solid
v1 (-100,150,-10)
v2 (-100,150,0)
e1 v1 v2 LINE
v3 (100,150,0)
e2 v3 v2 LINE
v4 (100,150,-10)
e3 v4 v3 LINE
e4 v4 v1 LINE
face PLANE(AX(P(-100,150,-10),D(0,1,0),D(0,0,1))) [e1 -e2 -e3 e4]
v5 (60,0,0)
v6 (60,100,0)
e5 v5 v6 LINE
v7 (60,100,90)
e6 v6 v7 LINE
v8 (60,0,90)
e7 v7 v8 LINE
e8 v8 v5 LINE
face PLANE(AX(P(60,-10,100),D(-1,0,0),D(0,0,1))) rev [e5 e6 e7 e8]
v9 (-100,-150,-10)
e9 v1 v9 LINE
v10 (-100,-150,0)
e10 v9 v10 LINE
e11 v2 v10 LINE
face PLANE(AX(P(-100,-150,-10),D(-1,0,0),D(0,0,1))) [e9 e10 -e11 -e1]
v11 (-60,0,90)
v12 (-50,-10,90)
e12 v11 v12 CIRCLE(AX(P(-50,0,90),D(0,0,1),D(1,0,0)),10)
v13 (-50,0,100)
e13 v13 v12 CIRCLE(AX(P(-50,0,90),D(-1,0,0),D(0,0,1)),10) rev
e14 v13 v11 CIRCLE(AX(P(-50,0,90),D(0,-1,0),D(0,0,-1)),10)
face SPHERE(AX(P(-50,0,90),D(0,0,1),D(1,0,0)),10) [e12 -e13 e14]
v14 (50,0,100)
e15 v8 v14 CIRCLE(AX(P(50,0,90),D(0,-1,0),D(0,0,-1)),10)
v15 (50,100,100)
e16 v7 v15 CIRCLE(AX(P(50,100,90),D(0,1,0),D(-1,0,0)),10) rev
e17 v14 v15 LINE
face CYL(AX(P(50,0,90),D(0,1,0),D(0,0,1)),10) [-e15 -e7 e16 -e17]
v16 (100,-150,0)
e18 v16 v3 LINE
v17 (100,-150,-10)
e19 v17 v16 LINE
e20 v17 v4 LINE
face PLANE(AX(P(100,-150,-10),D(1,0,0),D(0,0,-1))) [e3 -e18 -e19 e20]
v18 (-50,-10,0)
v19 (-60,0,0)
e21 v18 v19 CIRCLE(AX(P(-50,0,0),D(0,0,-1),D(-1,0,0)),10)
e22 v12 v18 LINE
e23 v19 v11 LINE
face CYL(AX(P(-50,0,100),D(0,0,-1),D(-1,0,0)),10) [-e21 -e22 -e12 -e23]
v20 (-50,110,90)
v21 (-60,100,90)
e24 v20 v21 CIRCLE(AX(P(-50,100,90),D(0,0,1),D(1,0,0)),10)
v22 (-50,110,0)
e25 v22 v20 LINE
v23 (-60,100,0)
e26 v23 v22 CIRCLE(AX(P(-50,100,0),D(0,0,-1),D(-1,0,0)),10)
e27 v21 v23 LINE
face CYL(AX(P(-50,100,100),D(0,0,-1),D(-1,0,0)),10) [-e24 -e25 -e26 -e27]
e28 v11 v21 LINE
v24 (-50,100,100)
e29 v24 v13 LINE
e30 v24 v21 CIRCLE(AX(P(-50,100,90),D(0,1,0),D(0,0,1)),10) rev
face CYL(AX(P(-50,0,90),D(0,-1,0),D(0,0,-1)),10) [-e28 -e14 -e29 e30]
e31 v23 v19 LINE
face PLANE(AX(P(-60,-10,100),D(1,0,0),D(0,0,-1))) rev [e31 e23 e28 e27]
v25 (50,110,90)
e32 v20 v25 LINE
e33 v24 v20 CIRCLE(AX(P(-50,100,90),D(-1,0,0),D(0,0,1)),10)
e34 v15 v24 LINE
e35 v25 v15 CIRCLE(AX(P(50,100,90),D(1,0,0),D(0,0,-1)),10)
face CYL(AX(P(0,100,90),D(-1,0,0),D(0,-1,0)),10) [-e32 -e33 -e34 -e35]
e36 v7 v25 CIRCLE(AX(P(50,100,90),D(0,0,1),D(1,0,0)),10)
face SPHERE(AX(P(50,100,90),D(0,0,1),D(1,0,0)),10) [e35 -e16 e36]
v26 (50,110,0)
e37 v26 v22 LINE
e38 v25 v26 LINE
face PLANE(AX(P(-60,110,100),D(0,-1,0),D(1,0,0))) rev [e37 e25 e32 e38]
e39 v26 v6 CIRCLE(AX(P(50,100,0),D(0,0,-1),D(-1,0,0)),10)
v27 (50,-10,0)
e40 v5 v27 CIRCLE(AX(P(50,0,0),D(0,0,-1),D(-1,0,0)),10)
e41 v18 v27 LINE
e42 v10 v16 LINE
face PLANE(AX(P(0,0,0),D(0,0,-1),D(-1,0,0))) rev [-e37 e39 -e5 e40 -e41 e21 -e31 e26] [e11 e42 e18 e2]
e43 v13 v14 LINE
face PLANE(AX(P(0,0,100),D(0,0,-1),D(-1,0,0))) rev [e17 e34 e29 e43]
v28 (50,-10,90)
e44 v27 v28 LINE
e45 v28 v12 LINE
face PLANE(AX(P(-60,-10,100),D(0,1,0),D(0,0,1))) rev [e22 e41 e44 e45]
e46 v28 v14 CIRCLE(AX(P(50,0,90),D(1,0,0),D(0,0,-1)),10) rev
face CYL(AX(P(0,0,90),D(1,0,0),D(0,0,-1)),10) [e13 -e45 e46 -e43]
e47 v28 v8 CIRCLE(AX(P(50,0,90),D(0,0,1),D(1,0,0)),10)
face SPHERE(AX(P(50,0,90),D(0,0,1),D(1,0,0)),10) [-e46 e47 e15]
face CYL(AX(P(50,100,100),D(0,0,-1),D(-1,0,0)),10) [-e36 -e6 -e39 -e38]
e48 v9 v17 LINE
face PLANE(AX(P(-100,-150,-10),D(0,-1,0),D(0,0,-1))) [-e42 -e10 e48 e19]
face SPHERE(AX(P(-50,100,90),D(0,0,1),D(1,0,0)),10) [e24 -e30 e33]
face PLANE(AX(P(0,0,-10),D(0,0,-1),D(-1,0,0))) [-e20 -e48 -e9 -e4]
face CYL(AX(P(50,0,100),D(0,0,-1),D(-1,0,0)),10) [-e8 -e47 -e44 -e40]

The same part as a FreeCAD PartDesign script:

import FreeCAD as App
import Part
import Sketcher

V = App.Vector
Q = App.Units.Quantity


def edges_at(feature, points):
    """Names of the edges that pass closest to the given points."""
    edges = feature.Shape.Edges
    near = lambda p: min(range(len(edges)), key=lambda i: edges[i].distToShape(Part.Vertex(*p))[0])
    return sorted({f"Edge{near(p) + 1}" for p in points})


def add_polygon(sketch, points):
    """Adds a closed chain of lines whose ends are joined by coincident constraints."""
    first, n = sketch.GeometryCount, len(points)
    for a, b in zip(points, points[1:] + points[:1]):
        sketch.addGeometry(Part.LineSegment(App.Vector(*a, 0), App.Vector(*b, 0)), False)
    for i in range(n):
        sketch.addConstraint(Sketcher.Constraint("Coincident", first + i, 2, first + (i + 1) % n, 1))

doc = App.newDocument("Part")
body = doc.addObject("PartDesign::Body", "Body")

sketch1 = body.newObject("Sketcher::SketchObject", "Sketch")
sketch1.AttachmentSupport = (doc.getObject("XY_Plane"), [""])
sketch1.MapMode = "FlatFace"
add_polygon(sketch1, [(-100, 150), (-100, -150), (100, -150), (100, 150)])
sketch1.addConstraint([
    Sketcher.Constraint("Vertical", 0),
    Sketcher.Constraint("Horizontal", 1),
    Sketcher.Constraint("Vertical", 2),
    Sketcher.Constraint("Horizontal", 3),
    Sketcher.Constraint("Symmetric", 0, 2, 2, 2, -1, 1),
    Sketcher.Constraint("DistanceX", 1, 1, 1, 2, Q("200 mm")),
    Sketcher.Constraint("DistanceY", 0, 2, 0, 1, Q("300 mm")),
])
pad1 = body.newObject("PartDesign::Pad", "Pad")
pad1.Profile = sketch1
pad1.Length = 10
pad1.Reversed = True

sketch2 = body.newObject("Sketcher::SketchObject", "Sketch001")
sketch2.AttachmentSupport = (doc.getObject("XY_Plane"), [""])
sketch2.MapMode = "FlatFace"
add_polygon(sketch2, [(-60, 110), (-60, -10), (60, -10), (60, 110)])
sketch2.addConstraint([
    Sketcher.Constraint("Vertical", 0),
    Sketcher.Constraint("Horizontal", 1),
    Sketcher.Constraint("Vertical", 2),
    Sketcher.Constraint("Horizontal", 3),
    Sketcher.Constraint("Equal", 3, 0),
    Sketcher.Constraint("DistanceX", 1, 1, 1, 2, Q("120 mm")),
    Sketcher.Constraint("DistanceX", 0, 2, -1, 1, Q("60 mm")),
    Sketcher.Constraint("DistanceY", 0, 2, -1, 1, Q("10 mm")),
])
pad2 = body.newObject("PartDesign::Pad", "Pad001")
pad2.Profile = sketch2
pad2.Length = 100
doc.recompute()

fillet = body.newObject("PartDesign::Fillet", "Fillet")
fillet.Base = (pad2, edges_at(pad2, [
    (60, -10, 50),
    (60, 110, 50),
    (-60, 110, 50),
    (-60, -10, 50),
    (60, 50, 100),
    (0, 110, 100),
    (-60, 50, 100),
    (0, -10, 100),
]))
fillet.Radius = 10

doc.recompute()
